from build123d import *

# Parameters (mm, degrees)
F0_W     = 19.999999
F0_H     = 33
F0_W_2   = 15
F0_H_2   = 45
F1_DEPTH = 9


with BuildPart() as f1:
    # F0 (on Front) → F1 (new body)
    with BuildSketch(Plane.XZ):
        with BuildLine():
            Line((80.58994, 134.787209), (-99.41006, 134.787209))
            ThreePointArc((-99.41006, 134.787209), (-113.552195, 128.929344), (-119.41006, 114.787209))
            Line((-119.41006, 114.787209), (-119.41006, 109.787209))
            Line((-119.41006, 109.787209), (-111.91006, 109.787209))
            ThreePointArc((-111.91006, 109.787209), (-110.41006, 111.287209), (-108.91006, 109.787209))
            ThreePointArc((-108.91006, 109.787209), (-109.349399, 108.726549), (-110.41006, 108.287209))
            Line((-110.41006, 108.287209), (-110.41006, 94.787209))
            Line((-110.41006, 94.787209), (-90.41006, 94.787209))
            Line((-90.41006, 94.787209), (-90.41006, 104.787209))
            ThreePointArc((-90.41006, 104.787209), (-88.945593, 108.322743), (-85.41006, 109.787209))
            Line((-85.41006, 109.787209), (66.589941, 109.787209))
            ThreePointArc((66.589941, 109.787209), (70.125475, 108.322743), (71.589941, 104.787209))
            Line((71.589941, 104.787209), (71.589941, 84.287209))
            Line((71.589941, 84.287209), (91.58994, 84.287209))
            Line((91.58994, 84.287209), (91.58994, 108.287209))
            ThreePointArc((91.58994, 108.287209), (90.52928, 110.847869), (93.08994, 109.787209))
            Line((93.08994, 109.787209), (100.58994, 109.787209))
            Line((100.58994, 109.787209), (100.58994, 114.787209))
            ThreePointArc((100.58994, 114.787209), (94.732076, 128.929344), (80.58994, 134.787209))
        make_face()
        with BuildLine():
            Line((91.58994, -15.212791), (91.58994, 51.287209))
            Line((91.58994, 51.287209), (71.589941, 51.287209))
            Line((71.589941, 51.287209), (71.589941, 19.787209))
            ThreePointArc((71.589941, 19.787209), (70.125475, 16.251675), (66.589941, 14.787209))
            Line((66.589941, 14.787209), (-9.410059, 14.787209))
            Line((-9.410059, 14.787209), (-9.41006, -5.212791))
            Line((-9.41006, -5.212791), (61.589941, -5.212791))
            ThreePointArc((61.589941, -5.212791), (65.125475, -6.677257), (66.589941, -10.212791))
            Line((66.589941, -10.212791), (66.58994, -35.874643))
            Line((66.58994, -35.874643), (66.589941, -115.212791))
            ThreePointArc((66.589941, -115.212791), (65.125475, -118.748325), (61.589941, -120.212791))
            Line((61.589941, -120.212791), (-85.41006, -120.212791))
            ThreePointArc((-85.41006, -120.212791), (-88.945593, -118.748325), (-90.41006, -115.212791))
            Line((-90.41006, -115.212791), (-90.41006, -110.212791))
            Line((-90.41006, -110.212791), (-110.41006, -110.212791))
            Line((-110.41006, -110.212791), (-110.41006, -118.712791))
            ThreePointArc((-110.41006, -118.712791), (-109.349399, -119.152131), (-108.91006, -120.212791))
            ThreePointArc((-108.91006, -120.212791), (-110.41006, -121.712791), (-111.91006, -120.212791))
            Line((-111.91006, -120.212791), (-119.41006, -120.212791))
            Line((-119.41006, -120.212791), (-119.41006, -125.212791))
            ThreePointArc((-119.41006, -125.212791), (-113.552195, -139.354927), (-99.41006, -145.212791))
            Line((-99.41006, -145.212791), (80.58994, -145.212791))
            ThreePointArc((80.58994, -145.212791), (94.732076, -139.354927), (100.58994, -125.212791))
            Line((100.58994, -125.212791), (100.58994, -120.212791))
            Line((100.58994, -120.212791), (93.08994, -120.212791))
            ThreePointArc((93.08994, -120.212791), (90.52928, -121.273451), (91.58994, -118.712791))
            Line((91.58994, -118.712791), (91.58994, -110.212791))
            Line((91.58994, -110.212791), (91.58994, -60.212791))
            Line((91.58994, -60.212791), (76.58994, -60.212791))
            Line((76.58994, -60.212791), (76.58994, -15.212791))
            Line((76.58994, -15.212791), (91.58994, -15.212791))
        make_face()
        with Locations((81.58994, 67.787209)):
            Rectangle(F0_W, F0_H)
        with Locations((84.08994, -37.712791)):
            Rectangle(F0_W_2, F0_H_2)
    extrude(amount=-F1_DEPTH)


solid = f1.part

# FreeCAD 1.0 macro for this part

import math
import FreeCAD as App
import Part
import Sketcher
Q = App.Units.Quantity

doc = App.newDocument("Part")
params = doc.addObject("Spreadsheet::Sheet", "Params")
for row, (alias, value) in enumerate([
    ("sketch1_radius", "5.000001 mm"),
    ("sketch1_radius2", "5 mm"),
    ("sketch1_radius3", "5 mm"),
    ("sketch1_radius4", "5 mm"),
    ("sketch1_radius5", "5 mm"),
    ("pad1_length", "9 mm"),
], start=1):
    params.set(f"A{row}", alias)
    params.set(f"B{row}", "=" + value)
    params.setAlias(f"B{row}", alias)

body = doc.addObject("PartDesign::Body", "Body")

sketch1 = body.newObject("Sketcher::SketchObject", "Sketch")
sketch1.AttachmentSupport = (doc.getObject("XZ_Plane"), [""])
sketch1.MapMode = "FlatFace"
sketch1.addGeometry([
    Part.LineSegment(App.Vector(80.58994, 134.787209, 0), App.Vector(-99.41006, 134.787209, 0)),
    Part.ArcOfCircle(Part.Circle(App.Vector(-99.410058, 114.787207, 0), App.Vector(0, 0, 1), 20.000002), math.radians(90.000006), math.radians(179.999994)),
    Part.LineSegment(App.Vector(-119.41006, 114.787209, 0), App.Vector(-119.41006, 109.787209, 0)),
    Part.LineSegment(App.Vector(-119.41006, 109.787209, 0), App.Vector(-111.91006, 109.787209, 0)),
    Part.ArcOfCircle(Part.Circle(App.Vector(-110.41006, 109.787209, 0), App.Vector(0, 0, 1), 1.5), math.radians(0), math.radians(180)),
    Part.ArcOfCircle(Part.Circle(App.Vector(-110.410059, 109.787208, 0), App.Vector(0, 0, 1), 1.499999), math.radians(-90.000043), math.radians(0.000043)),
    Part.LineSegment(App.Vector(-110.41006, 108.287209, 0), App.Vector(-110.41006, 94.787209, 0)),
    Part.LineSegment(App.Vector(-110.41006, 94.787209, 0), App.Vector(-90.41006, 94.787209, 0)),
    Part.LineSegment(App.Vector(-90.41006, 94.787209, 0), App.Vector(-90.41006, 104.787209, 0)),
    Part.ArcOfCircle(Part.Circle(App.Vector(-85.410059, 104.787208, 0), App.Vector(0, 0, 1), 5.000001), math.radians(90.000016), math.radians(179.999984)),
    Part.LineSegment(App.Vector(-85.41006, 109.787209, 0), App.Vector(66.589941, 109.787209, 0)),
    Part.ArcOfCircle(Part.Circle(App.Vector(66.589941, 104.787209, 0), App.Vector(0, 0, 1), 5), math.radians(-0.000004), math.radians(90.000004)),
    Part.LineSegment(App.Vector(71.589941, 104.787209, 0), App.Vector(71.589941, 84.287209, 0)),
    Part.LineSegment(App.Vector(71.58994, 84.287209, 0), App.Vector(71.589941, 84.287209, 0)),
    Part.LineSegment(App.Vector(71.58994, 84.287209, 0), App.Vector(71.58994, 51.287209, 0)),
    Part.LineSegment(App.Vector(71.589941, 51.287209, 0), App.Vector(71.58994, 51.287209, 0)),
    Part.LineSegment(App.Vector(71.589941, 51.287209, 0), App.Vector(71.589941, 19.787209, 0)),
    Part.ArcOfCircle(Part.Circle(App.Vector(66.589941, 19.787209, 0), App.Vector(0, 0, 1), 5), math.radians(-90.000004), math.radians(0.000004)),
    Part.LineSegment(App.Vector(66.589941, 14.787209, 0), App.Vector(-9.410059, 14.787209, 0)),
    Part.LineSegment(App.Vector(-9.410059, 14.787209, 0), App.Vector(-9.41006, -5.212791, 0)),
    Part.LineSegment(App.Vector(-9.41006, -5.212791, 0), App.Vector(61.589941, -5.212791, 0)),
    Part.ArcOfCircle(Part.Circle(App.Vector(61.589941, -10.212791, 0), App.Vector(0, 0, 1), 5), math.radians(-0.000004), math.radians(90.000004)),
    Part.LineSegment(App.Vector(66.589941, -10.212791, 0), App.Vector(66.58994, -35.874643, 0)),
    Part.LineSegment(App.Vector(66.58994, -35.874643, 0), App.Vector(66.589941, -115.212791, 0)),
    Part.ArcOfCircle(Part.Circle(App.Vector(61.589941, -115.212791, 0), App.Vector(0, 0, 1), 5), math.radians(-90.000004), math.radians(0.000004)),
    Part.LineSegment(App.Vector(61.589941, -120.212791, 0), App.Vector(-85.41006, -120.212791, 0)),
    Part.ArcOfCircle(Part.Circle(App.Vector(-85.410059, -115.21279, 0), App.Vector(0, 0, 1), 5.000001), math.radians(-179.999984), math.radians(-90.000016)),
    Part.LineSegment(App.Vector(-90.41006, -115.212791, 0), App.Vector(-90.41006, -110.212791, 0)),
    Part.LineSegment(App.Vector(-90.41006, -110.212791, 0), App.Vector(-110.41006, -110.212791, 0)),
    Part.LineSegment(App.Vector(-110.41006, -110.212791, 0), App.Vector(-110.41006, -118.712791, 0)),
    Part.ArcOfCircle(Part.Circle(App.Vector(-110.410059, -120.21279, 0), App.Vector(0, 0, 1), 1.499999), math.radians(-0.000043), math.radians(90.000043)),
    Part.ArcOfCircle(Part.Circle(App.Vector(-110.41006, -120.212791, 0), App.Vector(0, 0, 1), 1.5), math.radians(180), math.radians(360)),
    Part.LineSegment(App.Vector(-111.91006, -120.212791, 0), App.Vector(-119.41006, -120.212791, 0)),
    Part.LineSegment(App.Vector(-119.41006, -120.212791, 0), App.Vector(-119.41006, -125.212791, 0)),
    Part.ArcOfCircle(Part.Circle(App.Vector(-99.41006, -125.212791, 0), App.Vector(0, 0, 1), 20), math.radians(-179.999999), math.radians(-90.000001)),
    Part.LineSegment(App.Vector(-99.41006, -145.212791, 0), App.Vector(80.58994, -145.212791, 0)),
    Part.ArcOfCircle(Part.Circle(App.Vector(80.589941, -125.212792, 0), App.Vector(0, 0, 1), 19.999999), math.radians(-90.000004), math.radians(0.000004)),
    Part.LineSegment(App.Vector(100.58994, -125.212791, 0), App.Vector(100.58994, -120.212791, 0)),
    Part.LineSegment(App.Vector(100.58994, -120.212791, 0), App.Vector(93.08994, -120.212791, 0)),
    Part.ArcOfCircle(Part.Circle(App.Vector(91.58994, -120.212791, 0), App.Vector(0, 0, 1), 1.5), math.radians(90.000004), math.radians(359.999996)),
    Part.LineSegment(App.Vector(91.58994, -118.712791, 0), App.Vector(91.58994, 51.287209, 0)),
    Part.LineSegment(App.Vector(91.589939, 51.287209, 0), App.Vector(91.58994, 51.287209, 0)),
    Part.LineSegment(App.Vector(91.589939, 51.287209, 0), App.Vector(91.589939, 84.287209, 0)),
    Part.LineSegment(App.Vector(91.58994, 84.287209, 0), App.Vector(91.589939, 84.287209, 0)),
    Part.LineSegment(App.Vector(91.58994, 84.287209, 0), App.Vector(91.58994, 108.287209, 0)),
    Part.ArcOfCircle(Part.Circle(App.Vector(91.58994, 109.787209, 0), App.Vector(0, 0, 1), 1.5), math.radians(0.000004), math.radians(269.999996)),
    Part.LineSegment(App.Vector(93.08994, 109.787209, 0), App.Vector(100.58994, 109.787209, 0)),
    Part.LineSegment(App.Vector(100.58994, 109.787209, 0), App.Vector(100.58994, 114.787209, 0)),
    Part.ArcOfCircle(Part.Circle(App.Vector(80.58994, 114.787209, 0), App.Vector(0, 0, 1), 20), math.radians(0.000001), math.radians(89.999999)),
], False)
sketch1.addConstraint([
    Sketcher.Constraint("Coincident", 0, 2, 1, 1),
    Sketcher.Constraint("Coincident", 1, 2, 2, 1),
    Sketcher.Constraint("Coincident", 2, 2, 3, 1),
    Sketcher.Constraint("Coincident", 3, 2, 4, 2),
    Sketcher.Constraint("Coincident", 4, 1, 5, 2),
    Sketcher.Constraint("Coincident", 5, 1, 6, 1),
    Sketcher.Constraint("Coincident", 6, 2, 7, 1),
    Sketcher.Constraint("Coincident", 7, 2, 8, 1),
    Sketcher.Constraint("Coincident", 8, 2, 9, 2),
    Sketcher.Constraint("Coincident", 9, 1, 10, 1),
    Sketcher.Constraint("Coincident", 10, 2, 11, 2),
    Sketcher.Constraint("Coincident", 11, 1, 12, 1),
    Sketcher.Constraint("Coincident", 12, 2, 13, 1),
    Sketcher.Constraint("Coincident", 13, 2, 14, 1),
    Sketcher.Constraint("Coincident", 14, 2, 15, 1),
    Sketcher.Constraint("Coincident", 15, 2, 16, 1),
    Sketcher.Constraint("Coincident", 16, 2, 17, 2),
    Sketcher.Constraint("Coincident", 17, 1, 18, 1),
    Sketcher.Constraint("Coincident", 18, 2, 19, 1),
    Sketcher.Constraint("Coincident", 19, 2, 20, 1),
    Sketcher.Constraint("Coincident", 20, 2, 21, 2),
    Sketcher.Constraint("Coincident", 21, 1, 22, 1),
    Sketcher.Constraint("Coincident", 22, 2, 23, 1),
    Sketcher.Constraint("Coincident", 23, 2, 24, 2),
    Sketcher.Constraint("Coincident", 24, 1, 25, 1),
    Sketcher.Constraint("Coincident", 25, 2, 26, 2),
    Sketcher.Constraint("Coincident", 26, 1, 27, 1),
    Sketcher.Constraint("Coincident", 27, 2, 28, 1),
    Sketcher.Constraint("Coincident", 28, 2, 29, 1),
    Sketcher.Constraint("Coincident", 29, 2, 30, 2),
    Sketcher.Constraint("Coincident", 30, 1, 31, 2),
    Sketcher.Constraint("Coincident", 31, 1, 32, 1),
    Sketcher.Constraint("Coincident", 32, 2, 33, 1),
    Sketcher.Constraint("Coincident", 33, 2, 34, 1),
    Sketcher.Constraint("Coincident", 34, 2, 35, 1),
    Sketcher.Constraint("Coincident", 35, 2, 36, 1),
    Sketcher.Constraint("Coincident", 36, 2, 37, 1),
    Sketcher.Constraint("Coincident", 37, 2, 38, 1),
    Sketcher.Constraint("Coincident", 38, 2, 39, 2),
    Sketcher.Constraint("Coincident", 39, 1, 40, 1),
    Sketcher.Constraint("Coincident", 40, 2, 41, 1),
    Sketcher.Constraint("Coincident", 41, 2, 42, 1),
    Sketcher.Constraint("Coincident", 42, 2, 43, 1),
    Sketcher.Constraint("Coincident", 43, 2, 44, 1),
    Sketcher.Constraint("Coincident", 44, 2, 45, 2),
    Sketcher.Constraint("Coincident", 45, 1, 46, 1),
    Sketcher.Constraint("Coincident", 46, 2, 47, 1),
    Sketcher.Constraint("Coincident", 47, 2, 48, 1),
    Sketcher.Constraint("Coincident", 48, 2, 0, 1),
    Sketcher.Constraint("Horizontal", 0),
    Sketcher.Constraint("Vertical", 2),
    Sketcher.Constraint("Horizontal", 3),
    Sketcher.Constraint("Vertical", 6),
    Sketcher.Constraint("Horizontal", 7),
    Sketcher.Constraint("Vertical", 8),
    Sketcher.Constraint("Horizontal", 10),
    Sketcher.Constraint("Vertical", 12),
    Sketcher.Constraint("Horizontal", 13),
    Sketcher.Constraint("Vertical", 14),
    Sketcher.Constraint("Horizontal", 15),
    Sketcher.Constraint("Vertical", 16),
    Sketcher.Constraint("Horizontal", 18),
    Sketcher.Constraint("Vertical", 19),
    Sketcher.Constraint("Horizontal", 20),
    Sketcher.Constraint("Vertical", 22),
    Sketcher.Constraint("Vertical", 23),
    Sketcher.Constraint("Horizontal", 25),
    Sketcher.Constraint("Vertical", 27),
    Sketcher.Constraint("Horizontal", 28),
    Sketcher.Constraint("Vertical", 29),
    Sketcher.Constraint("Horizontal", 32),
    Sketcher.Constraint("Vertical", 33),
    Sketcher.Constraint("Horizontal", 35),
    Sketcher.Constraint("Vertical", 37),
    Sketcher.Constraint("Horizontal", 38),
    Sketcher.Constraint("Vertical", 40),
    Sketcher.Constraint("Horizontal", 41),
    Sketcher.Constraint("Vertical", 42),
    Sketcher.Constraint("Horizontal", 43),
    Sketcher.Constraint("Vertical", 44),
    Sketcher.Constraint("Horizontal", 46),
    Sketcher.Constraint("Vertical", 47),
    Sketcher.Constraint("Coincident", 5, 3, 4, 3),
    Sketcher.Constraint("Coincident", 31, 3, 30, 3),
    Sketcher.Constraint("Radius", 9, Q("5.000001 mm")),
    Sketcher.Constraint("Radius", 11, Q("5 mm")),
    Sketcher.Constraint("Radius", 17, Q("5 mm")),
    Sketcher.Constraint("Radius", 21, Q("5 mm")),
    Sketcher.Constraint("Radius", 24, Q("5 mm")),
    Sketcher.Constraint("Radius", 26, Q("5.000001 mm")),
    Sketcher.Constraint("Radius", 34, Q("20 mm")),
    Sketcher.Constraint("Radius", 36, Q("19.999999 mm")),
    Sketcher.Constraint("Radius", 48, Q("20 mm")),
    Sketcher.Constraint("Radius", 4, Q("1.5 mm")),
    Sketcher.Constraint("Radius", 30, Q("1.499999 mm")),
    Sketcher.Constraint("Radius", 39, Q("1.5 mm")),
    Sketcher.Constraint("Radius", 45, Q("1.5 mm")),
    Sketcher.Constraint("DistanceX", 0, 2, 0, 1, Q("180 mm")),
    Sketcher.Constraint("DistanceX", 7, 1, 7, 2, Q("20 mm")),
    Sketcher.Constraint("DistanceX", 10, 1, 10, 2, Q("152.000001 mm")),
    Sketcher.Constraint("DistanceX", 18, 2, 18, 1, Q("76 mm")),
    Sketcher.Constraint("DistanceX", 20, 1, 20, 2, Q("71.000001 mm")),
    Sketcher.Constraint("DistanceX", 25, 2, 25, 1, Q("147.000001 mm")),
    Sketcher.Constraint("DistanceX", 28, 2, 28, 1, Q("20 mm")),
    Sketcher.Constraint("DistanceX", 35, 1, 35, 2, Q("180 mm")),
    Sketcher.Constraint("DistanceY", 2, 2, 2, 1, Q("5 mm")),
    Sketcher.Constraint("DistanceY", 8, 1, 8, 2, Q("10 mm")),
    Sketcher.Constraint("DistanceY", 14, 2, 14, 1, Q("33 mm")),
    Sketcher.Constraint("DistanceY", 19, 2, 19, 1, Q("20 mm")),
    Sketcher.Constraint("DistanceY", 27, 1, 27, 2, Q("5 mm")),
    Sketcher.Constraint("DistanceY", 33, 2, 33, 1, Q("5 mm")),
    Sketcher.Constraint("DistanceY", 37, 1, 37, 2, Q("5 mm")),
    Sketcher.Constraint("DistanceY", 40, 1, 40, 2, Q("170 mm")),
    Sketcher.Constraint("DistanceY", 42, 1, 42, 2, Q("33 mm")),
    Sketcher.Constraint("DistanceY", 44, 1, 44, 2, Q("24 mm")),
    Sketcher.Constraint("DistanceY", 47, 1, 47, 2, Q("5 mm")),
    Sketcher.Constraint("DistanceX", 3, 1, 3, 2, Q("7.5 mm")),
    Sketcher.Constraint("DistanceX", 32, 2, 32, 1, Q("7.5 mm")),
    Sketcher.Constraint("DistanceX", 38, 2, 38, 1, Q("7.5 mm")),
    Sketcher.Constraint("DistanceX", 46, 1, 46, 2, Q("7.5 mm")),
    Sketcher.Constraint("DistanceY", 6, 2, 6, 1, Q("13.5 mm")),
    Sketcher.Constraint("DistanceY", 12, 2, 12, 1, Q("20.5 mm")),
    Sketcher.Constraint("DistanceY", 16, 2, 16, 1, Q("31.5 mm")),
    Sketcher.Constraint("DistanceY", 29, 2, 29, 1, Q("8.5 mm")),
    Sketcher.Constraint("Radius", 1, Q("20.000002 mm")),
    Sketcher.Constraint("DistanceY", 22, 2, 22, 1, Q("25.661852 mm")),
    Sketcher.Constraint("DistanceY", 23, 2, 23, 1, Q("79.338148 mm")),
    Sketcher.Constraint("DistanceX", 4, 3, -1, 1, Q("110.41006 mm")),
    Sketcher.Constraint("DistanceY", -1, 1, 4, 3, Q("109.787209 mm")),
    Sketcher.Constraint("DistanceX", 9, 3, -1, 1, Q("85.410059 mm")),
    Sketcher.Constraint("DistanceX", -1, 1, 11, 3, Q("66.589941 mm")),
    Sketcher.Constraint("DistanceY", -1, 1, 11, 3, Q("104.787209 mm")),
    Sketcher.Constraint("DistanceX", -1, 1, 17, 3, Q("66.589941 mm")),
    Sketcher.Constraint("DistanceY", -1, 1, 17, 3, Q("19.787209 mm")),
    Sketcher.Constraint("DistanceX", -1, 1, 21, 3, Q("61.589941 mm")),
    Sketcher.Constraint("DistanceY", 24, 3, -1, 1, Q("115.212791 mm")),
    Sketcher.Constraint("DistanceX", 26, 3, -1, 1, Q("85.410059 mm")),
    Sketcher.Constraint("DistanceX", 30, 3, -1, 1, Q("110.410059 mm")),
    Sketcher.Constraint("DistanceY", 30, 3, -1, 1, Q("120.21279 mm")),
    Sketcher.Constraint("DistanceY", 34, 3, -1, 1, Q("125.212791 mm")),
    Sketcher.Constraint("DistanceX", -1, 1, 36, 3, Q("80.589941 mm")),
    Sketcher.Constraint("DistanceY", 39, 3, -1, 1, Q("120.212791 mm")),
    Sketcher.Constraint("DistanceX", -1, 1, 45, 3, Q("91.58994 mm")),
    Sketcher.Constraint("DistanceY", -1, 1, 48, 3, Q("114.787209 mm")),
    Sketcher.Constraint("DistanceX", 0, 2, -1, 1, Q("99.41006 mm")),
    Sketcher.Constraint("DistanceY", -1, 1, 1, 2, Q("114.787209 mm")),
    Sketcher.Constraint("DistanceY", -1, 1, 4, 1, Q("109.787209 mm")),
    Sketcher.Constraint("DistanceX", 9, 1, -1, 1, Q("85.41006 mm")),
    Sketcher.Constraint("DistanceY", -1, 1, 11, 1, Q("104.787209 mm")),
    Sketcher.Constraint("DistanceX", -1, 1, 13, 2, Q("71.589941 mm")),
    Sketcher.Constraint("DistanceX", -1, 1, 17, 1, Q("66.589941 mm")),
    Sketcher.Constraint("DistanceY", 21, 1, -1, 1, Q("10.212791 mm")),
    Sketcher.Constraint("DistanceX", -1, 1, 24, 1, Q("61.589941 mm")),
    Sketcher.Constraint("DistanceY", 30, 1, -1, 1, Q("120.212791 mm")),
    Sketcher.Constraint("DistanceY", 31, 1, -1, 1, Q("120.212791 mm")),
    Sketcher.Constraint("DistanceX", 34, 2, -1, 1, Q("99.41006 mm")),
    Sketcher.Constraint("DistanceY", 36, 2, -1, 1, Q("125.212791 mm")),
    Sketcher.Constraint("DistanceX", -1, 1, 39, 1, Q("91.58994 mm")),
    Sketcher.Constraint("DistanceX", -1, 1, 41, 2, Q("91.58994 mm")),
    Sketcher.Constraint("DistanceX", -1, 1, 43, 2, Q("91.589939 mm")),
    Sketcher.Constraint("DistanceY", -1, 1, 45, 1, Q("109.787209 mm")),
])
sketch1.setExpression("Constraints[84]", "Params.sketch1_radius")
sketch1.setExpression("Constraints[85]", "Params.sketch1_radius2")
sketch1.setExpression("Constraints[86]", "Params.sketch1_radius3")
sketch1.setExpression("Constraints[87]", "Params.sketch1_radius4")
sketch1.setExpression("Constraints[88]", "Params.sketch1_radius5")
pad1 = body.newObject("PartDesign::Pad", "Pad")
pad1.Profile = sketch1
pad1.setExpression("Length", "Params.pad1_length")
pad1.Reversed = True

doc.recompute()
